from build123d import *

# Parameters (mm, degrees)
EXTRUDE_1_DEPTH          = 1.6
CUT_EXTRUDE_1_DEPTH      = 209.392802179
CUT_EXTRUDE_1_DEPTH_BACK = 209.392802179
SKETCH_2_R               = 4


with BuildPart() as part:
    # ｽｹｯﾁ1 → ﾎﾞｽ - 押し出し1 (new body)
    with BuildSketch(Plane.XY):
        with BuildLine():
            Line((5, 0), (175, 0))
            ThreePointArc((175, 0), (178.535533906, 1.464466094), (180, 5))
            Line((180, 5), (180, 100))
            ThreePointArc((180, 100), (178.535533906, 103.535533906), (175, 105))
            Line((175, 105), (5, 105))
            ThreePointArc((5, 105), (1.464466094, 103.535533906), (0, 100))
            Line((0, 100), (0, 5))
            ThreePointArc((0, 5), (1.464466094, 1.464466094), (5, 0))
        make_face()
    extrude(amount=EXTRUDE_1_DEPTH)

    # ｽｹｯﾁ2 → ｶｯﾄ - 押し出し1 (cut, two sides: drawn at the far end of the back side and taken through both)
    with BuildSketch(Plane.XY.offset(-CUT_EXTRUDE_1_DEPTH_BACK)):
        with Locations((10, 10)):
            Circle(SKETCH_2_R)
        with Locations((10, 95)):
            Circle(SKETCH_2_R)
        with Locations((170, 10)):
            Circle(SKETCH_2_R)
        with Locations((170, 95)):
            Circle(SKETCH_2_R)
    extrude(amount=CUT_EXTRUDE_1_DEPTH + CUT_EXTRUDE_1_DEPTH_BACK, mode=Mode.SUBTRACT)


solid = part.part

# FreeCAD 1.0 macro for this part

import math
import FreeCAD as App
import Part
import Sketcher

doc = App.newDocument("Part")
params = doc.addObject("Spreadsheet::Sheet", "Params")
for row, (alias, value) in enumerate([
    ("sketch1_radius", "5 mm"),
    ("sketch1_width", "170 mm"),
    ("sketch1_height", "95 mm"),
    ("pad1_length", "1.6 mm"),
    ("sketch2_diameter", "8 mm"),
], start=1):
    params.set(f"A{row}", alias)
    params.set(f"B{row}", "=" + value)
    params.setAlias(f"B{row}", alias)

body = doc.addObject("PartDesign::Body", "Body")

# Sketch on XY plane
sketch1 = body.newObject("Sketcher::SketchObject", "Sketch")
sketch1.AttachmentSupport = (doc.getObject("XY_Plane"), [""])
sketch1.MapMode = "FlatFace"
sketch1.addGeometry(Part.LineSegment(App.Vector(5, 0, 0), App.Vector(175, 0, 0)), False)
sketch1.addGeometry(Part.ArcOfCircle(Part.Circle(App.Vector(175, 5, 0), App.Vector(0, 0, 1), 5), math.radians(-90), math.radians(0)), False)
sketch1.addGeometry(Part.LineSegment(App.Vector(180, 5, 0), App.Vector(180, 100, 0)), False)
sketch1.addGeometry(Part.ArcOfCircle(Part.Circle(App.Vector(175, 100, 0), App.Vector(0, 0, 1), 5), math.radians(0), math.radians(90)), False)
sketch1.addGeometry(Part.LineSegment(App.Vector(175, 105, 0), App.Vector(5, 105, 0)), False)
sketch1.addGeometry(Part.ArcOfCircle(Part.Circle(App.Vector(5, 100, 0), App.Vector(0, 0, 1), 5), math.radians(90), math.radians(180)), False)
sketch1.addGeometry(Part.LineSegment(App.Vector(0, 100, 0), App.Vector(0, 5, 0)), False)
sketch1.addGeometry(Part.ArcOfCircle(Part.Circle(App.Vector(5, 5, 0), App.Vector(0, 0, 1), 5), math.radians(180), math.radians(270)), False)
sketch1.addConstraint(Sketcher.Constraint("Tangent", 0, 2, 1, 1))
sketch1.addConstraint(Sketcher.Constraint("Tangent", 1, 2, 2, 1))
sketch1.addConstraint(Sketcher.Constraint("Tangent", 2, 2, 3, 1))
sketch1.addConstraint(Sketcher.Constraint("Tangent", 3, 2, 4, 1))
sketch1.addConstraint(Sketcher.Constraint("Tangent", 4, 2, 5, 1))
sketch1.addConstraint(Sketcher.Constraint("Tangent", 5, 2, 6, 1))
sketch1.addConstraint(Sketcher.Constraint("Tangent", 6, 2, 7, 1))
sketch1.addConstraint(Sketcher.Constraint("Tangent", 7, 2, 0, 1))
sketch1.addConstraint(Sketcher.Constraint("Horizontal", 0))
sketch1.addConstraint(Sketcher.Constraint("Vertical", 2))
sketch1.addConstraint(Sketcher.Constraint("Horizontal", 4))
sketch1.addConstraint(Sketcher.Constraint("Vertical", 6))
sketch1.addConstraint(Sketcher.Constraint("Equal", 1, 3))
sketch1.addConstraint(Sketcher.Constraint("Equal", 3, 5))
sketch1.addConstraint(Sketcher.Constraint("Equal", 5, 7))
sketch1.addConstraint(Sketcher.Constraint("PointOnObject", 0, 2, -1))
sketch1.addConstraint(Sketcher.Constraint("PointOnObject", 5, 2, -2))
sketch1.addConstraint(Sketcher.Constraint("Radius", 1, 5.0))
sketch1.addConstraint(Sketcher.Constraint("DistanceX", 0, 1, 0, 2, 170.0))
sketch1.addConstraint(Sketcher.Constraint("DistanceY", 2, 1, 2, 2, 95.0))
sketch1.setExpression("Constraints[17]", "Params.sketch1_radius")
sketch1.setExpression("Constraints[18]", "Params.sketch1_width")
sketch1.setExpression("Constraints[19]", "Params.sketch1_height")
pad1 = body.newObject("PartDesign::Pad", "Pad")
pad1.Profile = sketch1
pad1.setExpression("Length", "Params.pad1_length")

# Sketch on XY plane
sketch2 = body.newObject("Sketcher::SketchObject", "Sketch001")
sketch2.AttachmentSupport = (doc.getObject("XY_Plane"), [""])
sketch2.MapMode = "FlatFace"
sketch2.addGeometry(Part.Circle(App.Vector(10, 10, 0), App.Vector(0, 0, 1), 4), False)
sketch2.addGeometry(Part.Circle(App.Vector(10, 95, 0), App.Vector(0, 0, 1), 4), False)
sketch2.addGeometry(Part.Circle(App.Vector(170, 10, 0), App.Vector(0, 0, 1), 4), False)
sketch2.addGeometry(Part.Circle(App.Vector(170, 95, 0), App.Vector(0, 0, 1), 4), False)
sketch2.addConstraint(Sketcher.Constraint("Equal", 0, 1))
sketch2.addConstraint(Sketcher.Constraint("Equal", 1, 2))
sketch2.addConstraint(Sketcher.Constraint("Equal", 2, 3))
sketch2.addConstraint(Sketcher.Constraint("Horizontal", 0, 3, 2, 3))
sketch2.addConstraint(Sketcher.Constraint("Horizontal", 1, 3, 3, 3))
sketch2.addConstraint(Sketcher.Constraint("Vertical", 0, 3, 1, 3))
sketch2.addConstraint(Sketcher.Constraint("Vertical", 2, 3, 3, 3))
sketch2.addConstraint(Sketcher.Constraint("Diameter", 0, 8.0))
sketch2.addConstraint(Sketcher.Constraint("DistanceX", -1, 1, 0, 3, 10.0))
sketch2.addConstraint(Sketcher.Constraint("DistanceY", -1, 1, 0, 3, 10.0))
sketch2.addConstraint(Sketcher.Constraint("DistanceY", -1, 1, 1, 3, 95.0))
sketch2.addConstraint(Sketcher.Constraint("DistanceX", -1, 1, 2, 3, 170.0))
sketch2.setExpression("Constraints[7]", "Params.sketch2_diameter")
pocket1 = body.newObject("PartDesign::Pocket", "Pocket")
pocket1.Profile = sketch2
pocket1.Type = "ThroughAll"
pocket1.Midplane = True

doc.recompute()
